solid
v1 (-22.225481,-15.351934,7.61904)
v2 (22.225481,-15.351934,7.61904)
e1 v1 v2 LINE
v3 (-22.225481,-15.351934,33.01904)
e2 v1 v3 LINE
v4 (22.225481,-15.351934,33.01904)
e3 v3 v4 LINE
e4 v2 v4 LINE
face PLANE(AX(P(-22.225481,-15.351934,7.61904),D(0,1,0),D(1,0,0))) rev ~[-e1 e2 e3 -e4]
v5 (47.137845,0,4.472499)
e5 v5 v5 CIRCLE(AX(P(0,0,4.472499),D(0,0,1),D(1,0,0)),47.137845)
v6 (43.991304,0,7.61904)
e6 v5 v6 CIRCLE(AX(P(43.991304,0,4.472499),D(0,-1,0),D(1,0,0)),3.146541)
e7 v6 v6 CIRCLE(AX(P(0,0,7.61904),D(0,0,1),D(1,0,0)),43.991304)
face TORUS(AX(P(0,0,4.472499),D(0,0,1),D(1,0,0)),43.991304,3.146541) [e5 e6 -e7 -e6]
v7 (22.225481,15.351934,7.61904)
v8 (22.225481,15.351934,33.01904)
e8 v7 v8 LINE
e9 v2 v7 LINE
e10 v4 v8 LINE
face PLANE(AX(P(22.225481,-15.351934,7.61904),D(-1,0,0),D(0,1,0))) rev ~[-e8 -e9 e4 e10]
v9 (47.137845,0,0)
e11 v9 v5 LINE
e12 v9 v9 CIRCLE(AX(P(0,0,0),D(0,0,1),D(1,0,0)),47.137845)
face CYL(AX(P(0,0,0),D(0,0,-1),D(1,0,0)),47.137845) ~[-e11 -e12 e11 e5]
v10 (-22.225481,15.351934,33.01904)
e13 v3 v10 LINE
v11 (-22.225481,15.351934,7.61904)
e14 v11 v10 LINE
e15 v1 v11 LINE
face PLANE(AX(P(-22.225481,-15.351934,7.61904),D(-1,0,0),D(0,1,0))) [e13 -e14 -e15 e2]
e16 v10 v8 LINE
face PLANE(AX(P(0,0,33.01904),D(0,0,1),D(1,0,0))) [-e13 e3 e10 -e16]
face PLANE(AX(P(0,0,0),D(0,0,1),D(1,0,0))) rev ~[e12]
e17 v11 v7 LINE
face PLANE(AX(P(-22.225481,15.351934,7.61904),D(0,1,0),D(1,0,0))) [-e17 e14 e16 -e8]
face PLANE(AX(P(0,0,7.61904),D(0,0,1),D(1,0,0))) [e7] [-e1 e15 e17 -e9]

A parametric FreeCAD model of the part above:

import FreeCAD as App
import Part
import Sketcher
Q = App.Units.Quantity


def edges_at(feature, points):
    """Names of the edges that pass closest to the given points."""
    edges = feature.Shape.Edges
    near = lambda p: min(range(len(edges)), key=lambda i: edges[i].distToShape(Part.Vertex(*p))[0])
    return sorted({f"Edge{near(p) + 1}" for p in points})

doc = App.newDocument("Part")
params = doc.addObject("Spreadsheet::Sheet", "Params")
for row, (alias, value) in enumerate([
    ("pad1_length", "7.61904 mm"),
    ("fillet_radius", "3.146541 mm"),
    ("pad2_length", "1 in"),
], start=1):
    params.set(f"A{row}", alias)
    params.set(f"B{row}", "=" + value)
    params.setAlias(f"B{row}", alias)

body = doc.addObject("PartDesign::Body", "Body")

sketch1 = doc.addObject("Sketcher::SketchObject", "Sketch")
body.addObject(sketch1)
sketch1.AttachmentSupport = (doc.XY_Plane, [""])
sketch1.MapMode = "FlatFace"
sketch1.addGeometry(Part.Circle(App.Vector(0, 0, 0), App.Vector(0, 0, 1), 47.137845), False)
sketch1.addConstraint(Sketcher.Constraint("Coincident", 0, 3, -1, 1))
sketch1.addConstraint(Sketcher.Constraint("Diameter", 0, Q("94.27569 mm")))
pad1 = doc.addObject("PartDesign::Pad", "Pad")
body.addObject(pad1)
pad1.Profile = sketch1
pad1.setExpression("Length", "Params.pad1_length")
doc.recompute()

fillet = doc.addObject("PartDesign::Fillet", "Fillet")
body.addObject(fillet)
fillet.Base = (pad1, edges_at(pad1, [(-47.138, 0, 7.619)]))
fillet.setExpression("Radius", "Params.fillet_radius")

sketch2 = doc.addObject("Sketcher::SketchObject", "Sketch001")
body.addObject(sketch2)
sketch2.AttachmentSupport = (doc.XY_Plane, [""])
sketch2.MapMode = "FlatFace"
sketch2.AttachmentOffset = App.Placement(App.Vector(0, 0, 7.61904), App.Rotation())
sketch2.addGeometry(Part.LineSegment(App.Vector(-22.225481, 15.351934, 0), App.Vector(-22.225481, -15.351934, 0)), False)
sketch2.addGeometry(Part.LineSegment(App.Vector(-22.225481, -15.351934, 0), App.Vector(22.225481, -15.351934, 0)), False)
sketch2.addGeometry(Part.LineSegment(App.Vector(22.225481, -15.351934, 0), App.Vector(22.225481, 15.351934, 0)), False)
sketch2.addGeometry(Part.LineSegment(App.Vector(22.225481, 15.351934, 0), App.Vector(-22.225481, 15.351934, 0)), False)
sketch2.addConstraint(Sketcher.Constraint("Coincident", 0, 2, 1, 1))
sketch2.addConstraint(Sketcher.Constraint("Coincident", 1, 2, 2, 1))
sketch2.addConstraint(Sketcher.Constraint("Coincident", 2, 2, 3, 1))
sketch2.addConstraint(Sketcher.Constraint("Coincident", 3, 2, 0, 1))
sketch2.addConstraint(Sketcher.Constraint("Vertical", 0))
sketch2.addConstraint(Sketcher.Constraint("Horizontal", 1))
sketch2.addConstraint(Sketcher.Constraint("Vertical", 2))
sketch2.addConstraint(Sketcher.Constraint("Horizontal", 3))
sketch2.addConstraint(Sketcher.Constraint("Symmetric", 0, 2, 2, 2, -1, 1))
sketch2.addConstraint(Sketcher.Constraint("DistanceX", 1, 1, 1, 2, Q("44.450962 mm")))
sketch2.addConstraint(Sketcher.Constraint("DistanceY", 0, 2, 0, 1, Q("30.703868 mm")))
pad2 = doc.addObject("PartDesign::Pad", "Pad001")
body.addObject(pad2)
pad2.Profile = sketch2
pad2.setExpression("Length", "Params.pad2_length")

doc.recompute()
